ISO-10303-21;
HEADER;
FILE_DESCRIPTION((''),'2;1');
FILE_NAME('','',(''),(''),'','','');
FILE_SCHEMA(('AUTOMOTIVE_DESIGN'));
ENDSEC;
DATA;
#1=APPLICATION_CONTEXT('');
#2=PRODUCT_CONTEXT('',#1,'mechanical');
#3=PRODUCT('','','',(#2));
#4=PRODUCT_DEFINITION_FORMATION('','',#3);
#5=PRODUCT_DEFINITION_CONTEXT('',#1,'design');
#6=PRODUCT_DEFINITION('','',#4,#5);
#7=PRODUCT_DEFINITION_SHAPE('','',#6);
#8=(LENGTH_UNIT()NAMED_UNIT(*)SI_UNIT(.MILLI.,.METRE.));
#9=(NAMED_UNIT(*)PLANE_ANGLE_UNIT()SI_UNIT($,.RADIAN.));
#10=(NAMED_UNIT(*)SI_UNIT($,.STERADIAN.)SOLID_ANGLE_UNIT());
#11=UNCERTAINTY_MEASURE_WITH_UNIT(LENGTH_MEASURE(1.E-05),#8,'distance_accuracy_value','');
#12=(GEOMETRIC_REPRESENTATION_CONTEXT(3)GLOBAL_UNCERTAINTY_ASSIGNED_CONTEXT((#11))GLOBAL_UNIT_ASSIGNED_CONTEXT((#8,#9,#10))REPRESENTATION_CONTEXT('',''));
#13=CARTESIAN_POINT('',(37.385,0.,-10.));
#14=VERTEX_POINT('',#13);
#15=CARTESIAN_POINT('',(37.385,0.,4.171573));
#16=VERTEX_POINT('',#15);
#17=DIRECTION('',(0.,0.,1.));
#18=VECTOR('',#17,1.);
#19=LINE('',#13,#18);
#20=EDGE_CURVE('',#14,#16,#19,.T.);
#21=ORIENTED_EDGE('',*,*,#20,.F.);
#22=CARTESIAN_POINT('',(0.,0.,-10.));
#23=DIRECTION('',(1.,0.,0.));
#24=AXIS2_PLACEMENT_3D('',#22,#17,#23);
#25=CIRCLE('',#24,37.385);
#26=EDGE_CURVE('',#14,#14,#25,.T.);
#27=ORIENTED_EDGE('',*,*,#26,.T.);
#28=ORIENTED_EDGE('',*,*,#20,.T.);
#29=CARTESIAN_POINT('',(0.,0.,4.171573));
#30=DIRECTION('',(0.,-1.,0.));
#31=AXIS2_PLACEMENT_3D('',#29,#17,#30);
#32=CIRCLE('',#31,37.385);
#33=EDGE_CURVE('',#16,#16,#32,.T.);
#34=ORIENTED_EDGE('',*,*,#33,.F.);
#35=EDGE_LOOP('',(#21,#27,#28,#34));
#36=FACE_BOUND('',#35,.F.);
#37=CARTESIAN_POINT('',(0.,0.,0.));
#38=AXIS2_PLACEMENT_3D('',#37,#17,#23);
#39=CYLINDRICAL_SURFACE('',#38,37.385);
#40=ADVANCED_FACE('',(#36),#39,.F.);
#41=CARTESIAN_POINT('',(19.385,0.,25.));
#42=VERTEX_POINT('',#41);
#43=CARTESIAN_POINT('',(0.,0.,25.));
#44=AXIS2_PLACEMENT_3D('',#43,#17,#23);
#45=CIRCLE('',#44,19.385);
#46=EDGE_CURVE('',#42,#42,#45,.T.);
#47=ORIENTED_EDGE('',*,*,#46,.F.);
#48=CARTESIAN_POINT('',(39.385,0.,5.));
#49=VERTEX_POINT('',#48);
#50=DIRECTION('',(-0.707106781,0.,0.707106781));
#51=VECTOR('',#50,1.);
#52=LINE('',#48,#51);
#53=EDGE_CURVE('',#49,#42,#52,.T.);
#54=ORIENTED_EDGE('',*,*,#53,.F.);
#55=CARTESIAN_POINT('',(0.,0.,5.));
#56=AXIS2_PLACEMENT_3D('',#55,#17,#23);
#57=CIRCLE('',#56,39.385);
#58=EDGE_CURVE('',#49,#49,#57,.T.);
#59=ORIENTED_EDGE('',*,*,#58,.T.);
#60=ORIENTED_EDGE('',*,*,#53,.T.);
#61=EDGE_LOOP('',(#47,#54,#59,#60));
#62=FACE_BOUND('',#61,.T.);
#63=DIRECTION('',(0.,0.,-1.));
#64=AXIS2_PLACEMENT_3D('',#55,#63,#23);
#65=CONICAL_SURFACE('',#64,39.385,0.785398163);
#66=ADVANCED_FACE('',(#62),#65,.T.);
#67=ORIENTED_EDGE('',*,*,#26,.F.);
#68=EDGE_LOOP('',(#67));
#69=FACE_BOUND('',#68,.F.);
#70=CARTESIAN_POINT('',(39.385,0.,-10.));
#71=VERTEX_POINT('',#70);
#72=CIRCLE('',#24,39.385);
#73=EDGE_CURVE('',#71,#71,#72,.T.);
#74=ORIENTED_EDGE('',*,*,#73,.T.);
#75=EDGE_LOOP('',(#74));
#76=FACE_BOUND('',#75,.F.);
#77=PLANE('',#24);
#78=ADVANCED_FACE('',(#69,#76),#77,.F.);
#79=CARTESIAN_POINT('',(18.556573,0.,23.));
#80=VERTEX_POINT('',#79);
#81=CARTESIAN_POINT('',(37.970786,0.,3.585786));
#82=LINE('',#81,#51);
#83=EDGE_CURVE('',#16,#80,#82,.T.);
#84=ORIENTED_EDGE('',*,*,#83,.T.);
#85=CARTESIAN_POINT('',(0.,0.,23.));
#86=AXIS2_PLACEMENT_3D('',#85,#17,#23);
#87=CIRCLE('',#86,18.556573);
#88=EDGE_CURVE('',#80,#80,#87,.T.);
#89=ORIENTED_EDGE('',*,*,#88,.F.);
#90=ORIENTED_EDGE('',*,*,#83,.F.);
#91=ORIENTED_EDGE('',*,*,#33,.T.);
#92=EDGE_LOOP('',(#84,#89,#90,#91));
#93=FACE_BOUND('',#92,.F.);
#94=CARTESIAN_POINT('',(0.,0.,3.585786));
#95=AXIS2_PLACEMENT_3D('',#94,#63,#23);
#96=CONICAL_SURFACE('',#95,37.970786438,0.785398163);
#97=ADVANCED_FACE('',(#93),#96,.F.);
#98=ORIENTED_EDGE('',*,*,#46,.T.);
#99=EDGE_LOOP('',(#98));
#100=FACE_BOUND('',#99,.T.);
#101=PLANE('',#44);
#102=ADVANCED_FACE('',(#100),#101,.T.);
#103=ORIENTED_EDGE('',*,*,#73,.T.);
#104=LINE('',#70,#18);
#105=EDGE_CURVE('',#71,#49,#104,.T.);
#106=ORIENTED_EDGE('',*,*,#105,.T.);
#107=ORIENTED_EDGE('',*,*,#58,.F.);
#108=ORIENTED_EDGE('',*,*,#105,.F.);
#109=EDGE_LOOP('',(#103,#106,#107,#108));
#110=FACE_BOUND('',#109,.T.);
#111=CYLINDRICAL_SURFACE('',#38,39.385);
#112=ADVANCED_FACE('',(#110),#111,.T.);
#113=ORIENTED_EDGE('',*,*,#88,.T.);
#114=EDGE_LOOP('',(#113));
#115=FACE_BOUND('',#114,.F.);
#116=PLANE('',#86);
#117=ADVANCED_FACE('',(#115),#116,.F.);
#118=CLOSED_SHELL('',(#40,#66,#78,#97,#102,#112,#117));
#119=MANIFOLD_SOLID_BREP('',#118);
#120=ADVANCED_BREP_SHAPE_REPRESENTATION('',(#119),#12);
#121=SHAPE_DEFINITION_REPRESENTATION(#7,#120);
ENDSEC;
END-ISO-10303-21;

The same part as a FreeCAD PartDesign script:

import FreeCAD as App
import Part
import Sketcher
from FreeCAD import Vector
Q = App.Units.Quantity


def edges_at(feature, points):
    """Names of the edges that pass closest to the given points."""
    edges = feature.Shape.Edges
    near = lambda p: min(range(len(edges)), key=lambda i: edges[i].distToShape(Part.Vertex(*p))[0])
    return sorted({f"Edge{near(p) + 1}" for p in points})


def faces_at(feature, points):
    """Names of the faces that lie closest to the given points."""
    faces = feature.Shape.Faces
    near = lambda p: min(range(len(faces)), key=lambda i: faces[i].distToShape(Part.Vertex(*p))[0])
    return sorted({f"Face{near(p) + 1}" for p in points})

doc = App.newDocument("Part")
params = doc.addObject("Spreadsheet::Sheet", "Params")
for row, (alias, value) in enumerate([
    ("sketch1_diameter", "78.77 mm"),
    ("pad1_length", "25 mm"),
    ("pad1_length2", "10 mm"),
    ("chamfer_size", "20 mm"),
    ("thickness_wall", "2 mm"),
], start=1):
    params.set(f"A{row}", alias)
    params.set(f"B{row}", "=" + value)
    params.setAlias(f"B{row}", alias)

body = doc.addObject("PartDesign::Body", "Body")

sketch1 = body.newObject("Sketcher::SketchObject", "Sketch")
sketch1.AttachmentSupport = (doc.getObject("XY_Plane"), [""])
sketch1.MapMode = "FlatFace"
sketch1.addGeometry(Part.Circle(Vector(0, 0, 0), Vector(0, 0, 1), 39.385), False)
sketch1.addConstraint(Sketcher.Constraint("Coincident", 0, 3, -1, 1))
sketch1.addConstraint(Sketcher.Constraint("Diameter", 0, Q("78.77 mm")))
sketch1.setExpression("Constraints[1]", "Params.sketch1_diameter")
pad1 = body.newObject("PartDesign::Pad", "Pad")
pad1.Profile = sketch1
pad1.Type = "TwoLengths"
pad1.setExpression("Length", "Params.pad1_length")
pad1.setExpression("Length2", "Params.pad1_length2")
doc.recompute()

chamfer = body.newObject("PartDesign::Chamfer", "Chamfer")
chamfer.Base = (pad1, edges_at(pad1, [(-39.385, 0, 25)]))
chamfer.setExpression("Size", "Params.chamfer_size")
doc.recompute()

thickness = body.newObject("PartDesign::Thickness", "Thickness")
thickness.Base = (chamfer, faces_at(chamfer, [(0, 0, -10)]))
thickness.setExpression("Value", "Params.thickness_wall")
thickness.Reversed = True
thickness.Join = "Arc"

doc.recompute()
